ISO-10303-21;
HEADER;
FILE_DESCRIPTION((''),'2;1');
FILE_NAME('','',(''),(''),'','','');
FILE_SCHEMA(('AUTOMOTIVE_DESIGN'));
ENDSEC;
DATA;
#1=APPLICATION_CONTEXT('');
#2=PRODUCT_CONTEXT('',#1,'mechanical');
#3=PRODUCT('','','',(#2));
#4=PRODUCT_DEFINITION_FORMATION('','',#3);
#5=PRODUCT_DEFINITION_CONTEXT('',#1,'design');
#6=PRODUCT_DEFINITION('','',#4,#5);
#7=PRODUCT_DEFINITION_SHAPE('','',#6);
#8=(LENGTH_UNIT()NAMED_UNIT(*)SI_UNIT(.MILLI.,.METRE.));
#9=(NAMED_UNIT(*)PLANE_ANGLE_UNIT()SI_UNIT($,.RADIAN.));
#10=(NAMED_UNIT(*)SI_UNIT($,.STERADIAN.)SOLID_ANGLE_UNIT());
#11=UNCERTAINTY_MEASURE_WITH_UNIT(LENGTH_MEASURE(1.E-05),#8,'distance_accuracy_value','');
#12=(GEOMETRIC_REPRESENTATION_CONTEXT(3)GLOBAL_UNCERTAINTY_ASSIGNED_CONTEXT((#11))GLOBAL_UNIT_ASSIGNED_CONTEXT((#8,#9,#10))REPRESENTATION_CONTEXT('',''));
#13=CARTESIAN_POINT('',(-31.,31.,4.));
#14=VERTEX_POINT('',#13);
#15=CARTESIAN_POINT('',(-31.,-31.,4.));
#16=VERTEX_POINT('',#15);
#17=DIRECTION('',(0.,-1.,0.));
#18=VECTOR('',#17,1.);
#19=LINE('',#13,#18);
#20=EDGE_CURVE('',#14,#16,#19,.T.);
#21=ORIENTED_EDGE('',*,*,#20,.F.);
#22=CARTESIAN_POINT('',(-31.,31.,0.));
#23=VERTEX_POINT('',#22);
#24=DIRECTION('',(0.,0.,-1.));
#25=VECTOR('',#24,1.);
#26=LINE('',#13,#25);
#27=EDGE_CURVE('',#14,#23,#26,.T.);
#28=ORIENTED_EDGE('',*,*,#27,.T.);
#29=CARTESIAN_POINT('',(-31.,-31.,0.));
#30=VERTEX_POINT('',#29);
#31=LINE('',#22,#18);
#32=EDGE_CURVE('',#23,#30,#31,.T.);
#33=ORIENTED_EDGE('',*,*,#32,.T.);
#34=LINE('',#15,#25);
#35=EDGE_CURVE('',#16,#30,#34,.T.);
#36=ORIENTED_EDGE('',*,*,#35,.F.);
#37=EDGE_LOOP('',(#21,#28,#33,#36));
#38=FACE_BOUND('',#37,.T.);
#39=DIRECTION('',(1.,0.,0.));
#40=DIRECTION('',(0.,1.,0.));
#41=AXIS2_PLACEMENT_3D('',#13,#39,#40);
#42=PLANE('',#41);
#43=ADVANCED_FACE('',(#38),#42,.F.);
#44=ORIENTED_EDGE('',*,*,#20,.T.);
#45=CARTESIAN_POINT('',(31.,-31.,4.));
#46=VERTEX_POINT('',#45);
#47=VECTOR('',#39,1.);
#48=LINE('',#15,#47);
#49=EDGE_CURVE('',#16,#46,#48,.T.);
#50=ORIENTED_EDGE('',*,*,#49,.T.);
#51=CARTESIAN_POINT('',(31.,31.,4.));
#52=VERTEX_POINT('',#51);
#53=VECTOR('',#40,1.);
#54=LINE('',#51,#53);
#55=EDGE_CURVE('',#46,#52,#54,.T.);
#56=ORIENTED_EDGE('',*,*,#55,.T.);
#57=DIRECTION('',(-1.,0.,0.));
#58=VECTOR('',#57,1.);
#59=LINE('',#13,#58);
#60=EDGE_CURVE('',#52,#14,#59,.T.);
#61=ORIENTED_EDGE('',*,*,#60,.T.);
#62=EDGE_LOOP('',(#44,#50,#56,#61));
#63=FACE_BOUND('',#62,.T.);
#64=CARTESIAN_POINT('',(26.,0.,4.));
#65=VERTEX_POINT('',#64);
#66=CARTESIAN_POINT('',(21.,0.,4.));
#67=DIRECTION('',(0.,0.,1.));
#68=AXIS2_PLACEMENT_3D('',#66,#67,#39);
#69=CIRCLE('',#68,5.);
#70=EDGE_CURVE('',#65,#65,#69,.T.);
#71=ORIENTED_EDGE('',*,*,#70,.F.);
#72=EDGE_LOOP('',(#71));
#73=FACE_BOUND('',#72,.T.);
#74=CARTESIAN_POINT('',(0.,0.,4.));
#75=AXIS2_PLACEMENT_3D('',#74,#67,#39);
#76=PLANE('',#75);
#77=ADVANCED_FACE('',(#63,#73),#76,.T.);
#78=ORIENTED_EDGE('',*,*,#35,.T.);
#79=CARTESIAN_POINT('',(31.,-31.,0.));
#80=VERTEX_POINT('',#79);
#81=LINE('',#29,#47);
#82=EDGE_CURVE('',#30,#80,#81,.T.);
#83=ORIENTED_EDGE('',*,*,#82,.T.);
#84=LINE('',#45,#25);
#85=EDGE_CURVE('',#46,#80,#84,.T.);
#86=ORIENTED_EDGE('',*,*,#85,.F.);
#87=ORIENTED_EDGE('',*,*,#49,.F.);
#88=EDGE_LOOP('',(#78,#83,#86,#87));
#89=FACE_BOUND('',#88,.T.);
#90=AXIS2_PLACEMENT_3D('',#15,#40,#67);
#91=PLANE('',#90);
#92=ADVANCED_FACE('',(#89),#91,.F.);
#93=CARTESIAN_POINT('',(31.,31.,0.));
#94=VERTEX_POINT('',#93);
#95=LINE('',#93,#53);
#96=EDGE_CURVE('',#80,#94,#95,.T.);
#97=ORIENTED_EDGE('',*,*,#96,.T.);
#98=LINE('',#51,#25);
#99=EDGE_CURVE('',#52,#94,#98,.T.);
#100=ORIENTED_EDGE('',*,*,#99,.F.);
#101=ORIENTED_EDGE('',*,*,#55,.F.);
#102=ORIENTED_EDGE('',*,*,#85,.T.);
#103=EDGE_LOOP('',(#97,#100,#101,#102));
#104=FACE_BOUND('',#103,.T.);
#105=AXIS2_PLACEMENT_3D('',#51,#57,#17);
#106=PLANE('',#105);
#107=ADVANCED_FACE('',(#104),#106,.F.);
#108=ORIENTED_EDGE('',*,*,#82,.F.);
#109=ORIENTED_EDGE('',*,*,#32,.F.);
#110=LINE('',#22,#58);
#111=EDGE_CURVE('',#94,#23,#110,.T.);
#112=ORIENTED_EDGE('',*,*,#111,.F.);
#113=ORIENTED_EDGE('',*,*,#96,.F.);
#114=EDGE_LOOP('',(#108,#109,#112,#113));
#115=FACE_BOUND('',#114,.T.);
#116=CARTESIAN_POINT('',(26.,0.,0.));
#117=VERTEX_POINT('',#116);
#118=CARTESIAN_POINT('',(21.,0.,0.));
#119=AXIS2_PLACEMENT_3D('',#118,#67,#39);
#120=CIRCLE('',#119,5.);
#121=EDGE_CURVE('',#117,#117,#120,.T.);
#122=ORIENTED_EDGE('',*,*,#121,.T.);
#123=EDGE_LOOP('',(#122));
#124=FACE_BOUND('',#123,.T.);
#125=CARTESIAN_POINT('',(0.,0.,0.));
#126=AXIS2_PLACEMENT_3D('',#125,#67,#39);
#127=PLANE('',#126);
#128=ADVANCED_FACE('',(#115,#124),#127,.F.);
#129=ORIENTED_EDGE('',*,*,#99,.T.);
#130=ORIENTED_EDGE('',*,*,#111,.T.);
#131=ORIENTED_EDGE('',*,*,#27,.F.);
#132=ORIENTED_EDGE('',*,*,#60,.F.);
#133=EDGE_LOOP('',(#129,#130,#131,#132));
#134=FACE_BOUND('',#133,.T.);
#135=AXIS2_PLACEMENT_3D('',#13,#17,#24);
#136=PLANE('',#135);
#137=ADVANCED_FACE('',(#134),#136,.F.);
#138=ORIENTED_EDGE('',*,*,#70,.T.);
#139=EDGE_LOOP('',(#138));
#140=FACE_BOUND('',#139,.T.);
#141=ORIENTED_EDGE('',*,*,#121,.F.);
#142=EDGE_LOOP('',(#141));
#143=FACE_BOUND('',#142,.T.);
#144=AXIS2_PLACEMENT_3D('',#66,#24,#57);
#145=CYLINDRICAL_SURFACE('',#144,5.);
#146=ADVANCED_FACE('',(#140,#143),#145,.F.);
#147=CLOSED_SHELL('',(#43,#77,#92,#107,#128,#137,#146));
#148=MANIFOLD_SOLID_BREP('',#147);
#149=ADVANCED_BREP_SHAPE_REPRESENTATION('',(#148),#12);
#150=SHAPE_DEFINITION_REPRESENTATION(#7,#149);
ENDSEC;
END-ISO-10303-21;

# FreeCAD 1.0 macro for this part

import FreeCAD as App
import Part
import Sketcher

V = App.Vector
Q = App.Units.Quantity


def add_polygon(sketch, points):
    """Adds a closed chain of lines whose ends are joined by coincident constraints."""
    first, n = sketch.GeometryCount, len(points)
    for a, b in zip(points, points[1:] + points[:1]):
        sketch.addGeometry(Part.LineSegment(App.Vector(*a, 0), App.Vector(*b, 0)), False)
    for i in range(n):
        sketch.addConstraint(Sketcher.Constraint("Coincident", first + i, 2, first + (i + 1) % n, 1))

doc = App.newDocument("Part")
body = doc.addObject("PartDesign::Body", "Body")

# Sketch on XY plane
sketch1 = body.newObject("Sketcher::SketchObject", "Sketch")
sketch1.AttachmentSupport = (doc.getObject("XY_Plane"), [""])
sketch1.MapMode = "FlatFace"
add_polygon(sketch1, [(-31, 31), (-31, -31), (31, -31), (31, 31)])  # lines 0-3
sketch1.addGeometry(Part.Circle(V(21, 0, 0), V(0, 0, 1), 5), False)  # 4
sketch1.addConstraint([
    Sketcher.Constraint("Vertical", 0),
    Sketcher.Constraint("Horizontal", 1),
    Sketcher.Constraint("Vertical", 2),
    Sketcher.Constraint("Horizontal", 3),
    Sketcher.Constraint("Symmetric", 0, 2, 2, 2, -1, 1),
    Sketcher.Constraint("PointOnObject", 4, 3, -1),
    Sketcher.Constraint("Equal", 3, 0),
    Sketcher.Constraint("Diameter", 4, Q("10 mm")),
    Sketcher.Constraint("DistanceX", 1, 1, 1, 2, Q("62 mm")),
    Sketcher.Constraint("DistanceX", -1, 1, 4, 3, Q("21 mm")),
])
pad1 = body.newObject("PartDesign::Pad", "Pad")
pad1.Profile = sketch1
pad1.Length = 4

doc.recompute()
